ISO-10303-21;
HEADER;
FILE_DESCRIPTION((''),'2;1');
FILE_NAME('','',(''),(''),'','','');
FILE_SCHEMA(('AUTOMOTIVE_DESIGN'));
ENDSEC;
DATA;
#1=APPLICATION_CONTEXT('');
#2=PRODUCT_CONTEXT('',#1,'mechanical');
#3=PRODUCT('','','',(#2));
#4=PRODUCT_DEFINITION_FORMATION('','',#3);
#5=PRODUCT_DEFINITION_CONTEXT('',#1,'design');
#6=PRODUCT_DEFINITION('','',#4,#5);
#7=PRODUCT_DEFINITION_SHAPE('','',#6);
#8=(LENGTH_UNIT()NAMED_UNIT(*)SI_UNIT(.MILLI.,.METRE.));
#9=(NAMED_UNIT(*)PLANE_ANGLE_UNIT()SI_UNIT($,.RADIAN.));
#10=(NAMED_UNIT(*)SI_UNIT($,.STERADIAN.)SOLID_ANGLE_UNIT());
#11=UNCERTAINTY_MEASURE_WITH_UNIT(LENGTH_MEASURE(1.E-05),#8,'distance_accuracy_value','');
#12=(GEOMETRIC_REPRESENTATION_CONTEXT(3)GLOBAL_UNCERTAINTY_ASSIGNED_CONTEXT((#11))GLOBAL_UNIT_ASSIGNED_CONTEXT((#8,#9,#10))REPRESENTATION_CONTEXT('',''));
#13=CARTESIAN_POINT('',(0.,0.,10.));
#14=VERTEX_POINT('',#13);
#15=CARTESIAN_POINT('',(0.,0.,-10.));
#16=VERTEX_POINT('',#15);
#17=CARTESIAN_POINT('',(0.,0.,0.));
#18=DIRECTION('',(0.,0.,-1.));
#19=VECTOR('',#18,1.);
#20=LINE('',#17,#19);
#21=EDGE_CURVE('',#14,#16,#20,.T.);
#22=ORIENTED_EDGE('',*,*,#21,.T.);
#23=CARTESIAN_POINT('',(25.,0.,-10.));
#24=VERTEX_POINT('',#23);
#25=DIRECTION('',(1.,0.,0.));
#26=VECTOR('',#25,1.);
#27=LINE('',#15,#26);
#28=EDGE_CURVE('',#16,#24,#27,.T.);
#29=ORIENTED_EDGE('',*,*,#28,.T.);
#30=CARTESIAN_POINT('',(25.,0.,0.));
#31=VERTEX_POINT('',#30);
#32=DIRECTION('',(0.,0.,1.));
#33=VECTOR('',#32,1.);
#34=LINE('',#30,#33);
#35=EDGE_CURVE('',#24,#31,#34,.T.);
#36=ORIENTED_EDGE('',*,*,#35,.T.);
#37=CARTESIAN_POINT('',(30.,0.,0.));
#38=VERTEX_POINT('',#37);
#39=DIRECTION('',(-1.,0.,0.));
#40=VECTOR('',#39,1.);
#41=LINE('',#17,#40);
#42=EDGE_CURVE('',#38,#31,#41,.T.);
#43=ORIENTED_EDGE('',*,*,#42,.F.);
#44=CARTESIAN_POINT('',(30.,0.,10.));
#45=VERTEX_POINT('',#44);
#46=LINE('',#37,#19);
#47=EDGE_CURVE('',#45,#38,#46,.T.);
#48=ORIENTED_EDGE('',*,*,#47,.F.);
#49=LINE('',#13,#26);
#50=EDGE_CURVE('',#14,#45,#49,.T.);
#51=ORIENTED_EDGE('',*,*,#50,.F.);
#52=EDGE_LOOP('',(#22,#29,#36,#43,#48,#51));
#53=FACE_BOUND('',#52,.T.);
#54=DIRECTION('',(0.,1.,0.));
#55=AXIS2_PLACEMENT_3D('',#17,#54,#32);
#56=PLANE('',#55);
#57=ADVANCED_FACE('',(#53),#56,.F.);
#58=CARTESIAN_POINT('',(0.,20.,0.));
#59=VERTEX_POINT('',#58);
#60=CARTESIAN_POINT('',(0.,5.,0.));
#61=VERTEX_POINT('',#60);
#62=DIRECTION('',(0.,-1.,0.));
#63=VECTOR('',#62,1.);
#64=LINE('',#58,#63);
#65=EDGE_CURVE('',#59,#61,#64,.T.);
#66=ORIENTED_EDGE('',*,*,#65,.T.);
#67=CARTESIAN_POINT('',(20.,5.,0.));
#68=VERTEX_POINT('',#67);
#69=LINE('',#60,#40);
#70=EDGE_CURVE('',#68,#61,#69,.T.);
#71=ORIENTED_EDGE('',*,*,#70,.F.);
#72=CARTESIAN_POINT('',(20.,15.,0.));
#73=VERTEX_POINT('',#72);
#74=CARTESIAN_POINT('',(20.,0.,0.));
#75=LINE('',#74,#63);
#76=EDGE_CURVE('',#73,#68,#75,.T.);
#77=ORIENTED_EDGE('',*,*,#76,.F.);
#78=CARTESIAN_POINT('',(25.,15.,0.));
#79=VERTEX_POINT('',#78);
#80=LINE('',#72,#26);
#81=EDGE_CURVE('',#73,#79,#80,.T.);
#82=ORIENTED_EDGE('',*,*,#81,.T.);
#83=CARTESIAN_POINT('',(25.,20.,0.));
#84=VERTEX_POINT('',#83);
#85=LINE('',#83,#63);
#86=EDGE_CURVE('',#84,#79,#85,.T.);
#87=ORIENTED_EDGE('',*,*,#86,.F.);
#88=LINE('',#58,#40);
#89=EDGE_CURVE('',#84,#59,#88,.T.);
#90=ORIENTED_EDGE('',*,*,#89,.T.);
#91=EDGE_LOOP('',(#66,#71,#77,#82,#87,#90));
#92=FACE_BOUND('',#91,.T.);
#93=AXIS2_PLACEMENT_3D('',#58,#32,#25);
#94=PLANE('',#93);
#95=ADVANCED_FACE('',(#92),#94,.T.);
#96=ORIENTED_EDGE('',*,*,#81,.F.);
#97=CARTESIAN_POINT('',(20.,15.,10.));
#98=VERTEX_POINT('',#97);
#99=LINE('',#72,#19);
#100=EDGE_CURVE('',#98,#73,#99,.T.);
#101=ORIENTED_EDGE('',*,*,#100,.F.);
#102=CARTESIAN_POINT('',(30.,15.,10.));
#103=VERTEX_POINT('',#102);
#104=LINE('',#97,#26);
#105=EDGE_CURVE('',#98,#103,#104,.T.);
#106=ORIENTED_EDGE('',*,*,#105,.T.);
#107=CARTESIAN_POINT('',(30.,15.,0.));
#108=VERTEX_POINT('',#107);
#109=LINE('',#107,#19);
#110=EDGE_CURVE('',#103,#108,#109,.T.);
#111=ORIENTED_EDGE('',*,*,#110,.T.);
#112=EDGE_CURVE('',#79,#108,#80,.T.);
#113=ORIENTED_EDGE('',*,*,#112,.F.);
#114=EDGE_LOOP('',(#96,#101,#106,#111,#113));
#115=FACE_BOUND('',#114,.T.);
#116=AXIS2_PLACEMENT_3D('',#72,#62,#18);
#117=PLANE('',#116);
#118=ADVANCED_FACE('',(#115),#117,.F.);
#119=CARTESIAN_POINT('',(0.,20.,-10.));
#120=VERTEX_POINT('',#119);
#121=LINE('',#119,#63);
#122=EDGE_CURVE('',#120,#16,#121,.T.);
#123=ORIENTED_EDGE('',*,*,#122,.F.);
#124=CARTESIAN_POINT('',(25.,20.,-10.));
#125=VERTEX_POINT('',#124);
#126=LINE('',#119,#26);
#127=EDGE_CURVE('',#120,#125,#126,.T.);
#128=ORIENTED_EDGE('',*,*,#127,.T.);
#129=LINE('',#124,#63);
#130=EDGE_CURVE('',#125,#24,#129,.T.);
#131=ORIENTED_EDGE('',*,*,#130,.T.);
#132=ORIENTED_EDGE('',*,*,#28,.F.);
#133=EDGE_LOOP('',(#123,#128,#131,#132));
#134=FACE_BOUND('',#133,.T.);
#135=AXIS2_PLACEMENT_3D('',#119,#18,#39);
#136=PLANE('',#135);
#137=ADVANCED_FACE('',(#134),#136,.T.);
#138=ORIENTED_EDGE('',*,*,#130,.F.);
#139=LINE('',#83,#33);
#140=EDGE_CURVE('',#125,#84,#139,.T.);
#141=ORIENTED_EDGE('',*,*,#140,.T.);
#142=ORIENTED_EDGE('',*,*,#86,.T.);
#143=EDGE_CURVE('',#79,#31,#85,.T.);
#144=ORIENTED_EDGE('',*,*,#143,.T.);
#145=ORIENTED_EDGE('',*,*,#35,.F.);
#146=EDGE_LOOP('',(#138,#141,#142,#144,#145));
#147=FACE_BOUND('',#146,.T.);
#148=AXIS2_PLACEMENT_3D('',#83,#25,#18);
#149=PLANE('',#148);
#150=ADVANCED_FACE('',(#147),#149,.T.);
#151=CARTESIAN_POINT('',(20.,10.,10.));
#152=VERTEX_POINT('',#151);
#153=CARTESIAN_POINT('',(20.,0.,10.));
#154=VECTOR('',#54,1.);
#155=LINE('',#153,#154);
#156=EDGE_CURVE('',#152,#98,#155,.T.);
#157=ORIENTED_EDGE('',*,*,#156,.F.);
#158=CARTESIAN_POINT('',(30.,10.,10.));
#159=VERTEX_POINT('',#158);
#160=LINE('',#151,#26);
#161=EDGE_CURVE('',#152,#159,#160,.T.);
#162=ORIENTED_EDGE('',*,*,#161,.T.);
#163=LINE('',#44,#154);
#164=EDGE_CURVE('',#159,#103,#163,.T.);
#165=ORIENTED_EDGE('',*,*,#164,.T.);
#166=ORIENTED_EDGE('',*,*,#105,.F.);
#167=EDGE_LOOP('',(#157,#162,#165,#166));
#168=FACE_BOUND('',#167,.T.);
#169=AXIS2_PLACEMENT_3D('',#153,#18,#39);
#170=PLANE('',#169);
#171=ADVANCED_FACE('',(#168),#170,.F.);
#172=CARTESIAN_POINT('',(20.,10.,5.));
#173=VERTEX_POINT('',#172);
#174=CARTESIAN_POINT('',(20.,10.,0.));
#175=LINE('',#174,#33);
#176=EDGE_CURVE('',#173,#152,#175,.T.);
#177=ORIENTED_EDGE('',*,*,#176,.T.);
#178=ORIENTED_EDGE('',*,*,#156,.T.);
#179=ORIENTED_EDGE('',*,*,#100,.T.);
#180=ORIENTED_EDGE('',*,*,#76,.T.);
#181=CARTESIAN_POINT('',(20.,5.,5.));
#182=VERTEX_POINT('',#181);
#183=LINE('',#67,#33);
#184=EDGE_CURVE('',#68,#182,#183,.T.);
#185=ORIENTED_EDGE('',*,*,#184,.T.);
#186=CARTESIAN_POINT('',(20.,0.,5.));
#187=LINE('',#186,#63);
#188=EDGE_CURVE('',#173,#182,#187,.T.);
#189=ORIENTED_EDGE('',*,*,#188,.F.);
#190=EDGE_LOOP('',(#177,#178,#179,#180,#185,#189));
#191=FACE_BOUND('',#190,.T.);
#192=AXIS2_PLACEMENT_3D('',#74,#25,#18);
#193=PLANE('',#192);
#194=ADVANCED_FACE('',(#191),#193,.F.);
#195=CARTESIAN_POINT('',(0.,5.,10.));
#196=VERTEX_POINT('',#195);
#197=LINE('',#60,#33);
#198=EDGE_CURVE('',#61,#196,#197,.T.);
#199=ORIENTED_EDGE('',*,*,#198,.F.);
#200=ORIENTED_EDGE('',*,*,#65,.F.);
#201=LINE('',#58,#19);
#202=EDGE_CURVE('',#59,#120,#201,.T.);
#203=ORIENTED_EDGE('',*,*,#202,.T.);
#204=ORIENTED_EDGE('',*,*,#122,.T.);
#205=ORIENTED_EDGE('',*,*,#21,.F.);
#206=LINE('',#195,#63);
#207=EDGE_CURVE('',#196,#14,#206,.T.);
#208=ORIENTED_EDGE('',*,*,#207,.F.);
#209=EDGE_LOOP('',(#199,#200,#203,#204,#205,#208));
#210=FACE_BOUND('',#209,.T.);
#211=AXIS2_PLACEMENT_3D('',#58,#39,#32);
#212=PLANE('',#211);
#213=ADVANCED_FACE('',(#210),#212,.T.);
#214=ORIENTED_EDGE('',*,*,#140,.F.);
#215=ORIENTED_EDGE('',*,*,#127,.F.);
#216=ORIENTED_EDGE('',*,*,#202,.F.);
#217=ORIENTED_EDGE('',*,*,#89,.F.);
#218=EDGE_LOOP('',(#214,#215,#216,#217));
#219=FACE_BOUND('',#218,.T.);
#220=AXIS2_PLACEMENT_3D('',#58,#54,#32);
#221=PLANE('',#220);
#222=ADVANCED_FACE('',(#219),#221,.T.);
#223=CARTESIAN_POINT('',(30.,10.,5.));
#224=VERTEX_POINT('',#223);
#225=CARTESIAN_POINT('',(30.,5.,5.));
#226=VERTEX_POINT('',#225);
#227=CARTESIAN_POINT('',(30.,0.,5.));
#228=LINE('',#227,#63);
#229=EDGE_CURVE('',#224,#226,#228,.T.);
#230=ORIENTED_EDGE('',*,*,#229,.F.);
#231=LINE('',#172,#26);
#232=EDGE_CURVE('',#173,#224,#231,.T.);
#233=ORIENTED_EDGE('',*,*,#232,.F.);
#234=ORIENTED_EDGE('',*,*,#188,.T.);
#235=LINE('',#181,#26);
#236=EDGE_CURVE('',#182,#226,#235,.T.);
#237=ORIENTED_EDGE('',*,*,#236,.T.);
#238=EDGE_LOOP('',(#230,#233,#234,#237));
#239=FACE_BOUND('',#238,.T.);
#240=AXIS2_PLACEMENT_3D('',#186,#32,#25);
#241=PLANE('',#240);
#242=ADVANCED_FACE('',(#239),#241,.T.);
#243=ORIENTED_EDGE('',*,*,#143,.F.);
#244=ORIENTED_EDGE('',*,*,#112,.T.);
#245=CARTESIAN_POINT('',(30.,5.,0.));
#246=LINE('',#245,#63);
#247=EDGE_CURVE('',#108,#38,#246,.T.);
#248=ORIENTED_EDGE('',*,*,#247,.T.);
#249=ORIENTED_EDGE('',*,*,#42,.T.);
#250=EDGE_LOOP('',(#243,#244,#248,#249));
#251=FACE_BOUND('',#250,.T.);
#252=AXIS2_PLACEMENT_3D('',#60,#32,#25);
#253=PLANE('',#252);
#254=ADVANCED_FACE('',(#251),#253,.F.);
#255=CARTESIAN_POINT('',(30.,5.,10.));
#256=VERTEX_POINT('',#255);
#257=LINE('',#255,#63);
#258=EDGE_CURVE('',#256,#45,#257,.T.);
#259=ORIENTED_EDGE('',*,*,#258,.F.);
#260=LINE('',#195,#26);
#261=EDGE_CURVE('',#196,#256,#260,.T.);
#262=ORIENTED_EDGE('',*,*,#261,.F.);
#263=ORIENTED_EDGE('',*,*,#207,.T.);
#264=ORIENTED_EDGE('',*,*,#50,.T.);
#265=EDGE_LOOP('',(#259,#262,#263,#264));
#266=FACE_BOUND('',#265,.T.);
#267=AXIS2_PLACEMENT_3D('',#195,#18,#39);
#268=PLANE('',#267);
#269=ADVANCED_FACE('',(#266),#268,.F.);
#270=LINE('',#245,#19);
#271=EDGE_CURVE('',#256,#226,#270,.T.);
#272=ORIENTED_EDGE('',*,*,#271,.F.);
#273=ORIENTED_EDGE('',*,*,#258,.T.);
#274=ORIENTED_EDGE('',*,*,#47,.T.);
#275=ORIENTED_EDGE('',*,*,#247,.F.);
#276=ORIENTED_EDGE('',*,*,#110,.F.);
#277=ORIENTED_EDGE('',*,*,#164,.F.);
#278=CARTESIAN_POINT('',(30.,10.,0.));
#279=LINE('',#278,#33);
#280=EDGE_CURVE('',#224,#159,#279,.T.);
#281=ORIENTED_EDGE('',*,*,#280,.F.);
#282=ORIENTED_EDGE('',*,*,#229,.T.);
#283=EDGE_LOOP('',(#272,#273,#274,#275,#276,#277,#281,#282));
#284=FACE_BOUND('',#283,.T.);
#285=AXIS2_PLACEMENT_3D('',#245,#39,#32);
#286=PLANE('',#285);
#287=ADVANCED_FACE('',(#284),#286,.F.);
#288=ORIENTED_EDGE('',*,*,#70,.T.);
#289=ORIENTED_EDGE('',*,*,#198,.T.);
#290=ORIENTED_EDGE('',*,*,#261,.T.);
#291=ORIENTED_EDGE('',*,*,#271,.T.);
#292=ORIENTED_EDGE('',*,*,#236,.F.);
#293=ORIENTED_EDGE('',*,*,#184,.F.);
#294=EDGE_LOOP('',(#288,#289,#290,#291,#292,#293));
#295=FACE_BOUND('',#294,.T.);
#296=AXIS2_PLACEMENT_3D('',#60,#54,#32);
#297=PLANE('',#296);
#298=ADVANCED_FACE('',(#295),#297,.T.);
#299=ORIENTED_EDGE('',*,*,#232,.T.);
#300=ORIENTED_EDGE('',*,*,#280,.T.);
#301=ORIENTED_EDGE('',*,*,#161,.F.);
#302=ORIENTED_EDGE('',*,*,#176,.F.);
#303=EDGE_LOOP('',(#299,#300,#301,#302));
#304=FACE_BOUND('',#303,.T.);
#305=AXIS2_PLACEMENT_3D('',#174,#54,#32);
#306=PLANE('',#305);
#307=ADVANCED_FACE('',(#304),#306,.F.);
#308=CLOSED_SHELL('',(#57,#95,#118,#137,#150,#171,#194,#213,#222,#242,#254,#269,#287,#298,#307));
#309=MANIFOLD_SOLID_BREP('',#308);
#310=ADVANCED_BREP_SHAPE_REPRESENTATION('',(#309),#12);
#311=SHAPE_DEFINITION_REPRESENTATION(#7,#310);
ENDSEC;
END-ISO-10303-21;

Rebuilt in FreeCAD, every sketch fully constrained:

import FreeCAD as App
import Part
import Sketcher
from FreeCAD import Vector
Q = App.Units.Quantity


def add_polygon(sketch, points):
    """Adds a closed chain of lines whose ends are joined by coincident constraints."""
    first, n = sketch.GeometryCount, len(points)
    for a, b in zip(points, points[1:] + points[:1]):
        sketch.addGeometry(Part.LineSegment(App.Vector(*a, 0), App.Vector(*b, 0)), False)
    for i in range(n):
        sketch.addConstraint(Sketcher.Constraint("Coincident", first + i, 2, first + (i + 1) % n, 1))

doc = App.newDocument("Part")
body = doc.addObject("PartDesign::Body", "Body")

# Sketch on XZ plane
sketch1 = body.newObject("Sketcher::SketchObject", "Sketch")
sketch1.AttachmentSupport = (doc.getObject("XZ_Plane"), [""])
sketch1.MapMode = "FlatFace"
add_polygon(sketch1, [(0, -10), (0, 0), (25, 0), (25, -10)])  # lines 0-3
sketch1.addConstraint([
    Sketcher.Constraint("Vertical", 0),
    Sketcher.Constraint("Horizontal", 1),
    Sketcher.Constraint("Vertical", 2),
    Sketcher.Constraint("Horizontal", 3),
    Sketcher.Constraint("Coincident", 0, 2, -1, 1),
    Sketcher.Constraint("DistanceX", 1, 1, 1, 2, Q("25 mm")),
    Sketcher.Constraint("DistanceY", 0, 1, 0, 2, Q("10 mm")),
])
pad1 = body.newObject("PartDesign::Pad", "Pad")
pad1.Profile = sketch1
pad1.Length = 20
pad1.Reversed = True

# Sketch on XZ plane
sketch2 = body.newObject("Sketcher::SketchObject", "Sketch001")
sketch2.AttachmentSupport = (doc.getObject("XZ_Plane"), [""])
sketch2.MapMode = "FlatFace"
add_polygon(sketch2, [(30, 10), (30, 0), (0, 0), (0, 10)])  # lines 0-3
sketch2.addConstraint([
    Sketcher.Constraint("Vertical", 0),
    Sketcher.Constraint("Horizontal", 1),
    Sketcher.Constraint("Vertical", 2),
    Sketcher.Constraint("Horizontal", 3),
    Sketcher.Constraint("Coincident", 1, 2, -1, 1),
    Sketcher.Constraint("DistanceX", 1, 2, 1, 1, Q("30 mm")),
    Sketcher.Constraint("DistanceY", 0, 2, 0, 1, Q("10 mm")),
])
pad2 = body.newObject("PartDesign::Pad", "Pad001")
pad2.Profile = sketch2
pad2.Length = 5
pad2.Reversed = True

# Sketch on YZ plane
sketch3 = body.newObject("Sketcher::SketchObject", "Sketch002")
sketch3.AttachmentSupport = (doc.getObject("YZ_Plane"), [""])
sketch3.MapMode = "FlatFace"
sketch3.AttachmentOffset = App.Placement(Vector(0, 0, 30), App.Rotation())
add_polygon(sketch3, [(5, 5), (5, 0), (15, 0), (15, 10), (10, 10), (10, 5)])  # lines 0-5
sketch3.addConstraint([
    Sketcher.Constraint("Vertical", 0),
    Sketcher.Constraint("Horizontal", 1),
    Sketcher.Constraint("Vertical", 2),
    Sketcher.Constraint("Horizontal", 3),
    Sketcher.Constraint("Vertical", 4),
    Sketcher.Constraint("Horizontal", 5),
    Sketcher.Constraint("PointOnObject", 0, 2, -1),
    Sketcher.Constraint("Equal", 3, 5),
    Sketcher.Constraint("Equal", 5, 0),
    Sketcher.Constraint("Equal", 1, 2),
    Sketcher.Constraint("DistanceX", 1, 1, 1, 2, Q("10 mm")),
    Sketcher.Constraint("DistanceX", -1, 1, 0, 2, Q("5 mm")),
])
pad3 = body.newObject("PartDesign::Pad", "Pad002")
pad3.Profile = sketch3
pad3.Length = 10
pad3.Reversed = True

doc.recompute()
